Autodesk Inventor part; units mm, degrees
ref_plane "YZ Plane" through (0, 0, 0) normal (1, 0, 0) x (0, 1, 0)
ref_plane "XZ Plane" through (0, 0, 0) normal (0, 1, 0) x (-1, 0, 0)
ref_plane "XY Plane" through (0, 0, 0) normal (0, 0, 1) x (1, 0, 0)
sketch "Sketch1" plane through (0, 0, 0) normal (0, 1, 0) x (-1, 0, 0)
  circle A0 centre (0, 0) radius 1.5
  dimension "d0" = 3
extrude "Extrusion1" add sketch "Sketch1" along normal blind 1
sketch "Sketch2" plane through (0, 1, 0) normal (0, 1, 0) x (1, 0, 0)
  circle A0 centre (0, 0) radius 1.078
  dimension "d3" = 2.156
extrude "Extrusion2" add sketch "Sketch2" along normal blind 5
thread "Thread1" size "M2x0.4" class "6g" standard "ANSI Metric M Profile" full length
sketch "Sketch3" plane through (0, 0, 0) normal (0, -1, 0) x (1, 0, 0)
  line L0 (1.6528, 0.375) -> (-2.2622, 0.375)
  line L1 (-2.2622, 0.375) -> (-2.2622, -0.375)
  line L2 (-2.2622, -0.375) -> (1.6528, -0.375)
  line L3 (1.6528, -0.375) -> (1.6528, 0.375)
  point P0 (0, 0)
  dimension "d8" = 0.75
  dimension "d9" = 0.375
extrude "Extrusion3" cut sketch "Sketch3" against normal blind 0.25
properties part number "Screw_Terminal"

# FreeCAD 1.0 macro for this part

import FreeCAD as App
import Part
import Sketcher
from FreeCAD import Vector


def add_polygon(sketch, points):
    """Adds a closed chain of lines whose ends are joined by coincident constraints."""
    first, n = sketch.GeometryCount, len(points)
    for a, b in zip(points, points[1:] + points[:1]):
        sketch.addGeometry(Part.LineSegment(App.Vector(*a, 0), App.Vector(*b, 0)), False)
    for i in range(n):
        sketch.addConstraint(Sketcher.Constraint("Coincident", first + i, 2, first + (i + 1) % n, 1))

doc = App.newDocument("Part")
params = doc.addObject("Spreadsheet::Sheet", "Params")
for row, (alias, value) in enumerate([
    ("sketch1_diameter", "3 mm"),
    ("pad1_length", "1 mm"),
    ("pad2_length", "5 mm"),
    ("sketch3_height", "0.75 mm"),
    ("pocket1_length", "0.25 mm"),
], start=1):
    params.set(f"A{row}", alias)
    params.set(f"B{row}", "=" + value)
    params.setAlias(f"B{row}", alias)

body = doc.addObject("PartDesign::Body", "Body")

sketch1 = body.newObject("Sketcher::SketchObject", "Sketch")
sketch1.AttachmentSupport = (doc.getObject("XZ_Plane"), [""])
sketch1.MapMode = "FlatFace"
sketch1.addGeometry(Part.Circle(Vector(0, 0, 0), Vector(0, 0, 1), 1.5), False)
sketch1.addConstraint([
    Sketcher.Constraint("Coincident", 0, 3, -1, 1),
    Sketcher.Constraint("Diameter", 0, 3.0),
])
sketch1.setExpression("Constraints[1]", "Params.sketch1_diameter")
pad1 = body.newObject("PartDesign::Pad", "Pad")
pad1.Profile = sketch1
pad1.setExpression("Length", "Params.pad1_length")
pad1.Reversed = True

sketch2 = body.newObject("Sketcher::SketchObject", "Sketch001")
sketch2.AttachmentSupport = (doc.getObject("XZ_Plane"), [""])
sketch2.MapMode = "FlatFace"
sketch2.AttachmentOffset = App.Placement(Vector(0, 0, -1), App.Rotation())
sketch2.addGeometry(Part.Circle(Vector(0, 0, 0), Vector(0, 0, 1), 1.078), False)
sketch2.addConstraint([
    Sketcher.Constraint("Coincident", 0, 3, -1, 1),
    Sketcher.Constraint("Diameter", 0, 2.156),
])
pad2 = body.newObject("PartDesign::Pad", "Pad001")
pad2.Profile = sketch2
pad2.setExpression("Length", "Params.pad2_length")
pad2.Reversed = True

sketch3 = body.newObject("Sketcher::SketchObject", "Sketch002")
sketch3.AttachmentSupport = (doc.getObject("XZ_Plane"), [""])
sketch3.MapMode = "FlatFace"
add_polygon(sketch3, [(1.6528, -0.375), (1.6528, 0.375), (-2.2622, 0.375), (-2.2622, -0.375)])
sketch3.addConstraint([
    Sketcher.Constraint("Vertical", 0),
    Sketcher.Constraint("Horizontal", 1),
    Sketcher.Constraint("Vertical", 2),
    Sketcher.Constraint("Horizontal", 3),
    Sketcher.Constraint("DistanceY", 0, 1, 0, 2, 0.75),
    Sketcher.Constraint("DistanceY", -1, 1, 0, 2, 0.375),
    Sketcher.Constraint("DistanceX", 1, 2, 1, 1, 3.915),
    Sketcher.Constraint("DistanceX", -1, 1, 0, 2, 1.6528),
])
sketch3.setExpression("Constraints[8]", "Params.sketch3_height")
pocket1 = body.newObject("PartDesign::Pocket", "Pocket")
pocket1.Profile = sketch3
pocket1.setExpression("Length", "Params.pocket1_length")

doc.recompute()
